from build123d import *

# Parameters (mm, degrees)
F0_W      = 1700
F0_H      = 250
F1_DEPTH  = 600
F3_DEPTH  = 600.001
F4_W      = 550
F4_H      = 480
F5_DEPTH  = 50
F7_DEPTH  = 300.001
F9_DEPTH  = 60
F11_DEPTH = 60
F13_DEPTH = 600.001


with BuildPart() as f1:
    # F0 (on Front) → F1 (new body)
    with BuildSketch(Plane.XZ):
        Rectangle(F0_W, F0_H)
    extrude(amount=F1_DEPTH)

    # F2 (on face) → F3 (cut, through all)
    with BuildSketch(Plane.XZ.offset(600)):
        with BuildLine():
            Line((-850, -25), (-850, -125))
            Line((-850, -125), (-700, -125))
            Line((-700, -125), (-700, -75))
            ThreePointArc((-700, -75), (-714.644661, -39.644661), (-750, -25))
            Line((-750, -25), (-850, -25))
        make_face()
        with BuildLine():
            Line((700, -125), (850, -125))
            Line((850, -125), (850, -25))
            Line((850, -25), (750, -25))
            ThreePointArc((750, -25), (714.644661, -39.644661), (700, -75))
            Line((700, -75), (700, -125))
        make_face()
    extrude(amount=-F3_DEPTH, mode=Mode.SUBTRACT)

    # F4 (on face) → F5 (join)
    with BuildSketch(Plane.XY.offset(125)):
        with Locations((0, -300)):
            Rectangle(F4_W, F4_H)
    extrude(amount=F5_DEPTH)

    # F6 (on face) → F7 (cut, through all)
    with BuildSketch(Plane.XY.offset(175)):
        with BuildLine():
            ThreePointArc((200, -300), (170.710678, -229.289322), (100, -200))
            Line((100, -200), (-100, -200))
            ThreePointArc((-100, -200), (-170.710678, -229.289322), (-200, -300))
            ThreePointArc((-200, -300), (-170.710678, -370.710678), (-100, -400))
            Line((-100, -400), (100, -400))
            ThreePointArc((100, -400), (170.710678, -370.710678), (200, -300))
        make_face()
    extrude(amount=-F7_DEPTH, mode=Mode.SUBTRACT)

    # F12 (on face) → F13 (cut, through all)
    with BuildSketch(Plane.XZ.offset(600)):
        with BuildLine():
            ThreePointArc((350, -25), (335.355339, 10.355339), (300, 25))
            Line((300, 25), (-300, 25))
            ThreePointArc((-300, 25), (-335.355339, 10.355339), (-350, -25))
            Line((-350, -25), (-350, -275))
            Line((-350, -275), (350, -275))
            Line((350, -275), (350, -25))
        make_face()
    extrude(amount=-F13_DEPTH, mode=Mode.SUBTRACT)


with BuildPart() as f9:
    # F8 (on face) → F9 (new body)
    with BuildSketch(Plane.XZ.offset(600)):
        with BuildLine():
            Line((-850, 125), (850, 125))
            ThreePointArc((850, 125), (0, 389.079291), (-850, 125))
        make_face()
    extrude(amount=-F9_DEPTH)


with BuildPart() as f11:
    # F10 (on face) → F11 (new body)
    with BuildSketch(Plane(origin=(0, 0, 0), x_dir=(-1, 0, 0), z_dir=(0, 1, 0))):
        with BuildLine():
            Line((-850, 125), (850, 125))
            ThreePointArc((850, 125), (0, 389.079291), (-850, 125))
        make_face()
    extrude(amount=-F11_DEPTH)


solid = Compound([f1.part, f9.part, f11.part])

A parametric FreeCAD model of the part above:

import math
import FreeCAD as App
import Part
import Sketcher
from FreeCAD import Vector


def add_polygon(sketch, points):
    """Adds a closed chain of lines whose ends are joined by coincident constraints."""
    first, n = sketch.GeometryCount, len(points)
    for a, b in zip(points, points[1:] + points[:1]):
        sketch.addGeometry(Part.LineSegment(App.Vector(*a, 0), App.Vector(*b, 0)), False)
    for i in range(n):
        sketch.addConstraint(Sketcher.Constraint("Coincident", first + i, 2, first + (i + 1) % n, 1))

doc = App.newDocument("Part")
body = doc.addObject("PartDesign::Body", "Body")

# Sketch on XZ plane
sketch1 = body.newObject("Sketcher::SketchObject", "Sketch")
sketch1.AttachmentSupport = (doc.getObject("XZ_Plane"), [""])
sketch1.MapMode = "FlatFace"
add_polygon(sketch1, [(-850, 125), (-850, -125), (850, -125), (850, 125)])  # lines 0-3
sketch1.addConstraint([
    Sketcher.Constraint("Vertical", 0),
    Sketcher.Constraint("Horizontal", 1),
    Sketcher.Constraint("Vertical", 2),
    Sketcher.Constraint("Horizontal", 3),
    Sketcher.Constraint("Symmetric", 0, 2, 2, 2, -1, 1),
    Sketcher.Constraint("DistanceX", 1, 1, 1, 2, 1700.0),
    Sketcher.Constraint("DistanceY", 0, 2, 0, 1, 250.0),
])
pad1 = body.newObject("PartDesign::Pad", "Pad")
pad1.Profile = sketch1
pad1.Length = 600

# Sketch on XZ plane
sketch2 = body.newObject("Sketcher::SketchObject", "Sketch001")
sketch2.AttachmentSupport = (doc.getObject("XZ_Plane"), [""])
sketch2.MapMode = "FlatFace"
sketch2.AttachmentOffset = App.Placement(Vector(0, 0, 600), App.Rotation())
sketch2.addGeometry([
    Part.LineSegment(Vector(-850, -25, 0), Vector(-850, -125, 0)),  # 0
    Part.LineSegment(Vector(-850, -125, 0), Vector(-700, -125, 0)),  # 1
    Part.LineSegment(Vector(-700, -125, 0), Vector(-700, -75, 0)),  # 2
    Part.ArcOfCircle(Part.Circle(Vector(-750, -75, 0), Vector(0, 0, 1), 50), math.radians(0), math.radians(90)),  # 3
    Part.LineSegment(Vector(-750, -25, 0), Vector(-850, -25, 0)),  # 4
    Part.LineSegment(Vector(700, -125, 0), Vector(850, -125, 0)),  # 5
    Part.LineSegment(Vector(850, -125, 0), Vector(850, -25, 0)),  # 6
    Part.LineSegment(Vector(850, -25, 0), Vector(750, -25, 0)),  # 7
    Part.ArcOfCircle(Part.Circle(Vector(750, -75, 0), Vector(0, 0, 1), 50), math.radians(90), math.radians(180)),  # 8
    Part.LineSegment(Vector(700, -75, 0), Vector(700, -125, 0)),  # 9
], False)
sketch2.addConstraint([
    Sketcher.Constraint("Coincident", 0, 2, 1, 1),
    Sketcher.Constraint("Coincident", 1, 2, 2, 1),
    Sketcher.Constraint("Tangent", 2, 2, 3, 1),
    Sketcher.Constraint("Tangent", 3, 2, 4, 1),
    Sketcher.Constraint("Coincident", 4, 2, 0, 1),
    Sketcher.Constraint("Coincident", 5, 2, 6, 1),
    Sketcher.Constraint("Coincident", 6, 2, 7, 1),
    Sketcher.Constraint("Tangent", 7, 2, 8, 1),
    Sketcher.Constraint("Tangent", 8, 2, 9, 1),
    Sketcher.Constraint("Coincident", 9, 2, 5, 1),
    Sketcher.Constraint("Vertical", 0),
    Sketcher.Constraint("Horizontal", 1),
    Sketcher.Constraint("Vertical", 2),
    Sketcher.Constraint("Horizontal", 4),
    Sketcher.Constraint("Horizontal", 5),
    Sketcher.Constraint("Vertical", 6),
    Sketcher.Constraint("Horizontal", 7),
    Sketcher.Constraint("Vertical", 9),
    Sketcher.Constraint("Equal", 3, 8),
    Sketcher.Constraint("Symmetric", 3, 3, 8, 3, -2),
    Sketcher.Constraint("Symmetric", 0, 2, 5, 2, -2),
    Sketcher.Constraint("Equal", 7, 0),
    Sketcher.Constraint("Radius", 3, 50.0),
    Sketcher.Constraint("DistanceX", 1, 1, 1, 2, 150.0),
    Sketcher.Constraint("DistanceX", 3, 3, -1, 1, 750.0),
    Sketcher.Constraint("DistanceY", 3, 3, -1, 1, 75.0),
])
pocket1 = body.newObject("PartDesign::Pocket", "Pocket")
pocket1.Profile = sketch2
pocket1.Type = "ThroughAll"

# Sketch on XY plane
sketch3 = body.newObject("Sketcher::SketchObject", "Sketch002")
sketch3.AttachmentSupport = (doc.getObject("XY_Plane"), [""])
sketch3.MapMode = "FlatFace"
sketch3.AttachmentOffset = App.Placement(Vector(0, 0, 125), App.Rotation())
add_polygon(sketch3, [(-275, -60), (-275, -540), (275, -540), (275, -60)])  # lines 0-3
sketch3.addConstraint([
    Sketcher.Constraint("Vertical", 0),
    Sketcher.Constraint("Horizontal", 1),
    Sketcher.Constraint("Vertical", 2),
    Sketcher.Constraint("Horizontal", 3),
    Sketcher.Constraint("DistanceX", 1, 1, 1, 2, 550.0),
    Sketcher.Constraint("DistanceY", 0, 2, 0, 1, 480.0),
    Sketcher.Constraint("DistanceX", 0, 2, -1, 1, 275.0),
    Sketcher.Constraint("DistanceY", 0, 2, -1, 1, 540.0),
])
pad2 = body.newObject("PartDesign::Pad", "Pad001")
pad2.Profile = sketch3
pad2.Length = 50

# Sketch on XY plane
sketch4 = body.newObject("Sketcher::SketchObject", "Sketch003")
sketch4.AttachmentSupport = (doc.getObject("XY_Plane"), [""])
sketch4.MapMode = "FlatFace"
sketch4.AttachmentOffset = App.Placement(Vector(0, 0, 175), App.Rotation())
sketch4.addGeometry([
    Part.ArcOfCircle(Part.Circle(Vector(100, -300, 0), Vector(0, 0, 1), 100), math.radians(0), math.radians(90)),  # 0
    Part.LineSegment(Vector(100, -200, 0), Vector(-100, -200, 0)),  # 1
    Part.ArcOfCircle(Part.Circle(Vector(-100, -300, 0), Vector(0, 0, 1), 100), math.radians(90), math.radians(180)),  # 2
    Part.ArcOfCircle(Part.Circle(Vector(-100, -300, 0), Vector(0, 0, 1), 100), math.radians(-180), math.radians(-90)),  # 3
    Part.LineSegment(Vector(-100, -400, 0), Vector(100, -400, 0)),  # 4
    Part.ArcOfCircle(Part.Circle(Vector(100, -300, 0), Vector(0, 0, 1), 100), math.radians(-90), math.radians(0)),  # 5
], False)
sketch4.addConstraint([
    Sketcher.Constraint("Tangent", 0, 2, 1, 1),
    Sketcher.Constraint("Tangent", 1, 2, 2, 1),
    Sketcher.Constraint("Tangent", 2, 2, 3, 1),
    Sketcher.Constraint("Tangent", 3, 2, 4, 1),
    Sketcher.Constraint("Tangent", 4, 2, 5, 1),
    Sketcher.Constraint("Tangent", 5, 2, 0, 1),
    Sketcher.Constraint("Horizontal", 1),
    Sketcher.Constraint("Horizontal", 4),
    Sketcher.Constraint("Equal", 0, 2),
    Sketcher.Constraint("Equal", 2, 3),
    Sketcher.Constraint("Symmetric", 2, 2, 5, 2, -2),
    Sketcher.Constraint("Horizontal", 5, 3, 2, 2),
    Sketcher.Constraint("Radius", 0, 100.0),
    Sketcher.Constraint("DistanceX", 1, 2, 1, 1, 200.0),
    Sketcher.Constraint("DistanceY", 0, 3, -1, 1, 300.0),
])
pocket2 = body.newObject("PartDesign::Pocket", "Pocket001")
pocket2.Profile = sketch4
pocket2.Type = "ThroughAll"

# Sketch on XZ plane
sketch5 = body.newObject("Sketcher::SketchObject", "Sketch004")
sketch5.AttachmentSupport = (doc.getObject("XZ_Plane"), [""])
sketch5.MapMode = "FlatFace"
sketch5.AttachmentOffset = App.Placement(Vector(0, 0, 600), App.Rotation())
sketch5.addGeometry([
    Part.ArcOfCircle(Part.Circle(Vector(300, -25, 0), Vector(0, 0, 1), 50), math.radians(0), math.radians(90)),  # 0
    Part.LineSegment(Vector(300, 25, 0), Vector(-300, 25, 0)),  # 1
    Part.ArcOfCircle(Part.Circle(Vector(-300, -25, 0), Vector(0, 0, 1), 50), math.radians(90), math.radians(180)),  # 2
    Part.LineSegment(Vector(-350, -25, 0), Vector(-350, -275, 0)),  # 3
    Part.LineSegment(Vector(-350, -275, 0), Vector(350, -275, 0)),  # 4
    Part.LineSegment(Vector(350, -275, 0), Vector(350, -25, 0)),  # 5
], False)
sketch5.addConstraint([
    Sketcher.Constraint("Tangent", 0, 2, 1, 1),
    Sketcher.Constraint("Tangent", 1, 2, 2, 1),
    Sketcher.Constraint("Tangent", 2, 2, 3, 1),
    Sketcher.Constraint("Coincident", 3, 2, 4, 1),
    Sketcher.Constraint("Coincident", 4, 2, 5, 1),
    Sketcher.Constraint("Tangent", 5, 2, 0, 1),
    Sketcher.Constraint("Horizontal", 1),
    Sketcher.Constraint("Vertical", 3),
    Sketcher.Constraint("Horizontal", 4),
    Sketcher.Constraint("Vertical", 5),
    Sketcher.Constraint("Equal", 0, 2),
    Sketcher.Constraint("Radius", 0, 50.0),
    Sketcher.Constraint("DistanceX", 1, 2, 1, 1, 600.0),
    Sketcher.Constraint("DistanceY", 3, 2, 3, 1, 250.0),
    Sketcher.Constraint("DistanceX", -1, 1, 0, 3, 300.0),
    Sketcher.Constraint("DistanceY", 0, 3, -1, 1, 25.0),
])
pocket3 = body.newObject("PartDesign::Pocket", "Pocket002")
pocket3.Profile = sketch5
pocket3.Type = "ThroughAll"
body2 = doc.addObject("PartDesign::Body", "Body001")

# Sketch on XZ plane
sketch6 = body2.newObject("Sketcher::SketchObject", "Sketch005")
sketch6.AttachmentSupport = (doc.getObject("XZ_Plane001"), [""])
sketch6.MapMode = "FlatFace"
sketch6.AttachmentOffset = App.Placement(Vector(0, 0, 600), App.Rotation())
sketch6.addGeometry([
    Part.LineSegment(Vector(-850, 125, 0), Vector(850, 125, 0)),
    Part.ArcOfCircle(Part.Circle(Vector(0, -1110.920707, 0), Vector(0, 0, 1), 1499.999998), math.radians(55.481892), math.radians(124.518108)),
], False)
sketch6.addConstraint([
    Sketcher.Constraint("Coincident", 0, 1, 1, 2),
    Sketcher.Constraint("Coincident", 1, 1, 0, 2),
    Sketcher.Constraint("Horizontal", 0),
    Sketcher.Constraint("PointOnObject", 1, 3, -2),
    Sketcher.Constraint("DistanceX", 0, 1, 0, 2, 1700.0),
    Sketcher.Constraint("DistanceY", -1, 1, 0, 1, 125.0),
    Sketcher.Constraint("Radius", 1, 1499.999998),
])
pad3 = body2.newObject("PartDesign::Pad", "Pad002")
pad3.Profile = sketch6
pad3.Length = 60
pad3.Reversed = True
body3 = doc.addObject("PartDesign::Body", "Body002")

# Sketch on XZ plane
sketch7 = body3.newObject("Sketcher::SketchObject", "Sketch006")
sketch7.AttachmentSupport = (doc.getObject("XZ_Plane002"), [""])
sketch7.MapMode = "FlatFace"
sketch7.addGeometry([
    Part.LineSegment(Vector(850, 125, 0), Vector(-850, 125, 0)),
    Part.ArcOfCircle(Part.Circle(Vector(0, -1110.920707, 0), Vector(0, 0, 1), 1499.999998), math.radians(55.481892), math.radians(124.518108)),
], False)
sketch7.addConstraint([
    Sketcher.Constraint("Coincident", 0, 1, 1, 1),
    Sketcher.Constraint("Coincident", 1, 2, 0, 2),
    Sketcher.Constraint("Horizontal", 0),
    Sketcher.Constraint("PointOnObject", 1, 3, -2),
    Sketcher.Constraint("DistanceX", 0, 2, 0, 1, 1700.0),
    Sketcher.Constraint("DistanceY", -1, 1, 0, 1, 125.0),
    Sketcher.Constraint("Radius", 1, 1499.999998),
])
pad4 = body3.newObject("PartDesign::Pad", "Pad003")
pad4.Profile = sketch7
pad4.Length = 60

doc.recompute()
